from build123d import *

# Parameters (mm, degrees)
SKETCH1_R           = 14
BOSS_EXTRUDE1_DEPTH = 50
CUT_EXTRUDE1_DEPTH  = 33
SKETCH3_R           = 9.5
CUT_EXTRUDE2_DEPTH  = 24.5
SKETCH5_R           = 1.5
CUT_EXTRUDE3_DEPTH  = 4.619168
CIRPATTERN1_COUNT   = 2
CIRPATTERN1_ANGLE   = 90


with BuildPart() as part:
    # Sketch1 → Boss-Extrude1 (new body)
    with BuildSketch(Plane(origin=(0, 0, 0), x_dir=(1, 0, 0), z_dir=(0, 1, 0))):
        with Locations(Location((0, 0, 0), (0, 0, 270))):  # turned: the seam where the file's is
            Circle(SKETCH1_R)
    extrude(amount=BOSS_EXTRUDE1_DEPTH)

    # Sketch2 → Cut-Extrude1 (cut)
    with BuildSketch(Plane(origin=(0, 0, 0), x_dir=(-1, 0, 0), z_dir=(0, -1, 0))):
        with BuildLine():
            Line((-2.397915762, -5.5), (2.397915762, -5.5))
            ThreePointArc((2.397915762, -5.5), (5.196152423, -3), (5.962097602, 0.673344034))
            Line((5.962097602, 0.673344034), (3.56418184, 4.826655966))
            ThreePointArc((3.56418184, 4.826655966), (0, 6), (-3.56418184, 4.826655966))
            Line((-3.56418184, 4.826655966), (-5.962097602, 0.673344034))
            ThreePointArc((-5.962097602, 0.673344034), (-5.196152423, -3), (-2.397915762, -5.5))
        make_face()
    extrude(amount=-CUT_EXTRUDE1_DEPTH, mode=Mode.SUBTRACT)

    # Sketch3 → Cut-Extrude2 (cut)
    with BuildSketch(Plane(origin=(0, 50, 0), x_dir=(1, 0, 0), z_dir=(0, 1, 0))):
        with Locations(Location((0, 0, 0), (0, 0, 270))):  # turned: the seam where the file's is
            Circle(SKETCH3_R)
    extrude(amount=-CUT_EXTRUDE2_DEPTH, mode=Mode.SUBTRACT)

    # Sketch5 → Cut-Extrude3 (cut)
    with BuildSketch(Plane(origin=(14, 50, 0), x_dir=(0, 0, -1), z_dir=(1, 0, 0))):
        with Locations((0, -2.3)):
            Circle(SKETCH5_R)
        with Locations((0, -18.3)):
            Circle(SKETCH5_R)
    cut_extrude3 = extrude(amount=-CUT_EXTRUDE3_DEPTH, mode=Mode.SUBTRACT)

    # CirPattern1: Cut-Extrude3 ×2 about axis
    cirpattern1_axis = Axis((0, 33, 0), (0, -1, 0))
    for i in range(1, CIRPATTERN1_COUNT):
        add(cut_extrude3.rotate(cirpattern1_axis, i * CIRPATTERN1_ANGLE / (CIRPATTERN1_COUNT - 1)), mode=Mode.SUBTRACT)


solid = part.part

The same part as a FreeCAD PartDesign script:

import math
import FreeCAD as App
import Part
import Sketcher

V = App.Vector
Q = App.Units.Quantity

doc = App.newDocument("Part")
body = doc.addObject("PartDesign::Body", "Body")

sketch1 = body.newObject("Sketcher::SketchObject", "Sketch")
sketch1.AttachmentSupport = (doc.getObject("XZ_Plane"), [""])
sketch1.MapMode = "FlatFace"
sketch1.addGeometry(Part.Circle(V(0, 0, 0), V(0, 0, 1), 14), False)
sketch1.addConstraint([
    Sketcher.Constraint("Coincident", 0, 3, -1, 1),
    Sketcher.Constraint("Diameter", 0, 28.0),
])
pad1 = body.newObject("PartDesign::Pad", "Pad")
pad1.Profile = sketch1
pad1.Length = 50
pad1.Reversed = True

sketch2 = body.newObject("Sketcher::SketchObject", "Sketch001")
sketch2.AttachmentSupport = (doc.getObject("XZ_Plane"), [""])
sketch2.MapMode = "FlatFace"
sketch2.addGeometry([
    Part.LineSegment(V(2.397916, 5.5, 0), V(-2.397916, 5.5, 0)),
    Part.ArcOfCircle(Part.Circle(V(0, 0, 0), V(0, 0, 1), 6), math.radians(113.556464), math.radians(186.443536)),
    Part.LineSegment(V(-5.962098, -0.673344, 0), V(-3.564182, -4.826656, 0)),
    Part.ArcOfCircle(Part.Circle(V(0, 0, 0), V(0, 0, 1), 6), math.radians(-126.443536), math.radians(-53.556464)),
    Part.LineSegment(V(3.564182, -4.826656, 0), V(5.962098, -0.673344, 0)),
    Part.ArcOfCircle(Part.Circle(V(0, 0, 0), V(0, 0, 1), 6), math.radians(-6.443536), math.radians(66.443536)),
], False)
sketch2.addConstraint([
    Sketcher.Constraint("Coincident", 0, 2, 1, 1),
    Sketcher.Constraint("Coincident", 1, 2, 2, 1),
    Sketcher.Constraint("Coincident", 2, 2, 3, 1),
    Sketcher.Constraint("Coincident", 3, 2, 4, 1),
    Sketcher.Constraint("Coincident", 4, 2, 5, 1),
    Sketcher.Constraint("Coincident", 5, 2, 0, 1),
    Sketcher.Constraint("Horizontal", 0),
    Sketcher.Constraint("Coincident", 1, 3, -1, 1),
    Sketcher.Constraint("Coincident", 3, 3, -1, 1),
    Sketcher.Constraint("Coincident", 5, 3, -1, 1),
    Sketcher.Constraint("Equal", 1, 3),
    Sketcher.Constraint("Equal", 3, 5),
    Sketcher.Constraint("Horizontal", 2, 2, 3, 2),
    Sketcher.Constraint("Horizontal", 1, 2, 4, 2),
    Sketcher.Constraint("Radius", 1, 6.0),
    Sketcher.Constraint("Angle", 2, Q("-60 deg")),
    Sketcher.Constraint("DistanceY", -1, 1, 0, 2, 5.5),
    Sketcher.Constraint("Distance", 2, 4.795832),
])
pocket1 = body.newObject("PartDesign::Pocket", "Pocket")
pocket1.Profile = sketch2
pocket1.Length = 33

sketch3 = body.newObject("Sketcher::SketchObject", "Sketch002")
sketch3.AttachmentSupport = (doc.getObject("XZ_Plane"), [""])
sketch3.MapMode = "FlatFace"
sketch3.AttachmentOffset = App.Placement(V(0, 0, -50), App.Rotation())
sketch3.addGeometry(Part.Circle(V(0, 0, 0), V(0, 0, 1), 9.5), False)
sketch3.addConstraint([
    Sketcher.Constraint("Coincident", 0, 3, -1, 1),
    Sketcher.Constraint("Diameter", 0, 19.0),
])
pocket2 = body.newObject("PartDesign::Pocket", "Pocket001")
pocket2.Profile = sketch3
pocket2.Length = 24.5
pocket2.Reversed = True

sketch4 = body.newObject("Sketcher::SketchObject", "Sketch003")
sketch4.AttachmentSupport = (doc.getObject("YZ_Plane"), [""])
sketch4.MapMode = "FlatFace"
sketch4.AttachmentOffset = App.Placement(V(0, 0, 14), App.Rotation())
sketch4.addGeometry([
    Part.Circle(V(47.7, 0, 0), V(0, 0, 1), 1.5),
    Part.Circle(V(31.7, 0, 0), V(0, 0, 1), 1.5),
], False)
sketch4.addConstraint([
    Sketcher.Constraint("Equal", 0, 1),
    Sketcher.Constraint("PointOnObject", 0, 3, -1),
    Sketcher.Constraint("PointOnObject", 1, 3, -1),
    Sketcher.Constraint("Diameter", 0, 3.0),
    Sketcher.Constraint("DistanceX", 1, 3, 0, 3, 16.0),
    Sketcher.Constraint("DistanceX", -1, 1, 0, 3, 47.7),
])
pocket3 = body.newObject("PartDesign::Pocket", "Pocket002")
pocket3.Profile = sketch4
pocket3.Length = 4.619168
doc.recompute()

polarpattern = body.newObject("PartDesign::PolarPattern", "PolarPattern")
polarpattern.Originals = [pocket3]
polarpattern.Axis = (doc.getObject("Y_Axis"), [""])
polarpattern.Angle = 90
polarpattern.Occurrences = 2
polarpattern.Reversed = True
body.Tip = polarpattern

doc.recompute()
